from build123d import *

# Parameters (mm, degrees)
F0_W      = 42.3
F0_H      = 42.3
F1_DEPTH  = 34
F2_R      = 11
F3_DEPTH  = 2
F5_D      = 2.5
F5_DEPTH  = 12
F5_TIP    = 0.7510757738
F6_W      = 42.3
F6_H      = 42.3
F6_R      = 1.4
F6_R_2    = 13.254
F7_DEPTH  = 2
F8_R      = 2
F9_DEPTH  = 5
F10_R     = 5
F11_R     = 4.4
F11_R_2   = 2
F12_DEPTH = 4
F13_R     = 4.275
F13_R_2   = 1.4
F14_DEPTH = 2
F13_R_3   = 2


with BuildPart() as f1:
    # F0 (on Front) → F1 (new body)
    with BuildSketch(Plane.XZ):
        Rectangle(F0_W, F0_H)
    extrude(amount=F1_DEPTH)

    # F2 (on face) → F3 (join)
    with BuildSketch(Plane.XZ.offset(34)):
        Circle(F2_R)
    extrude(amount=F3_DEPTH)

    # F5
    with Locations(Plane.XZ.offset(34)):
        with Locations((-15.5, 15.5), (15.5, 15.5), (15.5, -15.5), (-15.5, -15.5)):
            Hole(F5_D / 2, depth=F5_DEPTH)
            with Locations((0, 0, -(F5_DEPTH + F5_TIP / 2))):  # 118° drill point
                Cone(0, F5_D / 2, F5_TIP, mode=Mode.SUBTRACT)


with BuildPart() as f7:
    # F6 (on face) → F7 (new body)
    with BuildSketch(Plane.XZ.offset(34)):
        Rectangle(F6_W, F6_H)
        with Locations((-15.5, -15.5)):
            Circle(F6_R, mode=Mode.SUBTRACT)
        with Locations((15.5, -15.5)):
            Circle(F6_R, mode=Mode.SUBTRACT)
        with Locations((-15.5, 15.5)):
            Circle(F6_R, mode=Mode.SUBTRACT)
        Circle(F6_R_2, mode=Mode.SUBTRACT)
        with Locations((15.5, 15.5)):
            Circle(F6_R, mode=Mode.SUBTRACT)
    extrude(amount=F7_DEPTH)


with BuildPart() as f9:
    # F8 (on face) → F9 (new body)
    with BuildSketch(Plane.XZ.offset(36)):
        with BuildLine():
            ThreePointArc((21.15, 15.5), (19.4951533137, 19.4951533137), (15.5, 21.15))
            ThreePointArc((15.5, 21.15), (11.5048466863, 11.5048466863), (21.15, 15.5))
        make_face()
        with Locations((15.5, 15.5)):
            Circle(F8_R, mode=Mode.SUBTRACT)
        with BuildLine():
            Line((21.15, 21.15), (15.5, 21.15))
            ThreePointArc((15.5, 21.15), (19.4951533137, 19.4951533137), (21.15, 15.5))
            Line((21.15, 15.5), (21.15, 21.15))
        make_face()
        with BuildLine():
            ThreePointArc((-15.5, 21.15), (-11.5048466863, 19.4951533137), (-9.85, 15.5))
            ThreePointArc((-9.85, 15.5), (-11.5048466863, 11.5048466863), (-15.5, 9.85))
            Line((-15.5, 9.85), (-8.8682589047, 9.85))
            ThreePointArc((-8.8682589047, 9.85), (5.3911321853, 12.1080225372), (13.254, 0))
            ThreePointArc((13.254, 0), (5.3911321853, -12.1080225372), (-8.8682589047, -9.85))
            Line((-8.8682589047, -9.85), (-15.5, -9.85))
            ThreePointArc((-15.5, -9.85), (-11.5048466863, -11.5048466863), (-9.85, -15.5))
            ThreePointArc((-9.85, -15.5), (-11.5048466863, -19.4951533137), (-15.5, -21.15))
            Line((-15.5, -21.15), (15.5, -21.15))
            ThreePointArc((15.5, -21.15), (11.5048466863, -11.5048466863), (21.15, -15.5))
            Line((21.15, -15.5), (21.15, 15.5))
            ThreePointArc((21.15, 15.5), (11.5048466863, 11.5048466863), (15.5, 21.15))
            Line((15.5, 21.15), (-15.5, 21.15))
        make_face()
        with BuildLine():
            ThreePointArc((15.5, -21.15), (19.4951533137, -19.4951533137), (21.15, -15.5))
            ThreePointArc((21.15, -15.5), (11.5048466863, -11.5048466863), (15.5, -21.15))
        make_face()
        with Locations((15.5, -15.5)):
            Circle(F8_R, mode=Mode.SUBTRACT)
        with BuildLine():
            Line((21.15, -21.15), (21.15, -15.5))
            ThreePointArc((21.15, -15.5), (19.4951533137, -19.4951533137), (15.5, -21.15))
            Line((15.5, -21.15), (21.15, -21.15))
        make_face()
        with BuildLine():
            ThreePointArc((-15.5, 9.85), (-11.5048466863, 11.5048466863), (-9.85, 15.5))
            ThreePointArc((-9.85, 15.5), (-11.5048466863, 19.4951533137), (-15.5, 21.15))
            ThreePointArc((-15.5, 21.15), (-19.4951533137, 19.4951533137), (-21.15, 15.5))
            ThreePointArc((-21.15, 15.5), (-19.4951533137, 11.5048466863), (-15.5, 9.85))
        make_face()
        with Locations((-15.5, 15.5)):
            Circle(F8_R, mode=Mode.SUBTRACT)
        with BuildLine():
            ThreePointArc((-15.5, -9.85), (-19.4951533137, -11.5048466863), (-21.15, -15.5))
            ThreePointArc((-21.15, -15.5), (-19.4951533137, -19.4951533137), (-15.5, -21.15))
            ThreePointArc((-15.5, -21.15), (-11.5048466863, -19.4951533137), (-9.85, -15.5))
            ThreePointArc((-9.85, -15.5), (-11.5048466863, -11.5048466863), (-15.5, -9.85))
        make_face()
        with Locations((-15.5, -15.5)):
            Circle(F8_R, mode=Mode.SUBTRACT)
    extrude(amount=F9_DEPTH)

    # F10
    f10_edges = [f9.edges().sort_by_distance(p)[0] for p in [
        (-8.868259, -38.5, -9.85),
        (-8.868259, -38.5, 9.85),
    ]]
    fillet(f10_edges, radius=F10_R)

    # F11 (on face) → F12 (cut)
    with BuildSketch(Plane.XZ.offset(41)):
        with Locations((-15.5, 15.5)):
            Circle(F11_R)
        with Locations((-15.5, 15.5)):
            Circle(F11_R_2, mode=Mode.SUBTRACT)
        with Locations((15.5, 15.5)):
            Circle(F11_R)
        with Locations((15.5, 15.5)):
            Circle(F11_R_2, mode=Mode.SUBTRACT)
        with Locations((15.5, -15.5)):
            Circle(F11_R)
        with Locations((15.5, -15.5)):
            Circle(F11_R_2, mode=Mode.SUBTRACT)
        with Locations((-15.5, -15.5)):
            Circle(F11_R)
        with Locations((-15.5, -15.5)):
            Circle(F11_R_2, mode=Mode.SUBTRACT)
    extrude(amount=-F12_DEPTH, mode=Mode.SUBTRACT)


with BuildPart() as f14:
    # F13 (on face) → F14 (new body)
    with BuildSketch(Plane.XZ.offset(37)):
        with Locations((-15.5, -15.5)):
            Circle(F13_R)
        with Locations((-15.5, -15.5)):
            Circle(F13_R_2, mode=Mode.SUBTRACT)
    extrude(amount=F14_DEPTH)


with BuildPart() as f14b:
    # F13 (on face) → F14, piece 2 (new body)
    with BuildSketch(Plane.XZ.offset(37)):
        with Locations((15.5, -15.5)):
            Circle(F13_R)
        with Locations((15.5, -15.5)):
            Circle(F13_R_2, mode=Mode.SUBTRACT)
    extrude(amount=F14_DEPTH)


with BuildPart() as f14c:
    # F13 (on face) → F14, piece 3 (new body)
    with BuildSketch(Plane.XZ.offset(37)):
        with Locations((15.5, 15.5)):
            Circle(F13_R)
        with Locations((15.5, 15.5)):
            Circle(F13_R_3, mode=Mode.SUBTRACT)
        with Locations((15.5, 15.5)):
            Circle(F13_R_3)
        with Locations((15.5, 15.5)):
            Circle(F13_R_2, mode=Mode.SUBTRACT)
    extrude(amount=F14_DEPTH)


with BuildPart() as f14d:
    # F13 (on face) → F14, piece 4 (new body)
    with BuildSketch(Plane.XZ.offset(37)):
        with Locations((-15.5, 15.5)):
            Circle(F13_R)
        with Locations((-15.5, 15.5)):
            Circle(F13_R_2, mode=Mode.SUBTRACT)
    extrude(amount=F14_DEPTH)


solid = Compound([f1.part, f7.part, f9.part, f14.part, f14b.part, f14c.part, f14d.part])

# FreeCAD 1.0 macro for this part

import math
import FreeCAD as App
import Part
import Sketcher

V = App.Vector
Q = App.Units.Quantity


def edges_at(feature, points):
    """Names of the edges that pass closest to the given points."""
    edges = feature.Shape.Edges
    near = lambda p: min(range(len(edges)), key=lambda i: edges[i].distToShape(Part.Vertex(*p))[0])
    return sorted({f"Edge{near(p) + 1}" for p in points})

doc = App.newDocument("Part")
body = doc.addObject("PartDesign::Body", "Body")

# Sketch on XZ plane
sketch1 = body.newObject("Sketcher::SketchObject", "Sketch")
sketch1.AttachmentSupport = (doc.getObject("XZ_Plane"), [""])
sketch1.MapMode = "FlatFace"
sketch1.addGeometry(Part.LineSegment(V(-21.15, 21.15, 0), V(-21.15, -21.15, 0)), False)
sketch1.addGeometry(Part.LineSegment(V(-21.15, -21.15, 0), V(21.15, -21.15, 0)), False)
sketch1.addGeometry(Part.LineSegment(V(21.15, -21.15, 0), V(21.15, 21.15, 0)), False)
sketch1.addGeometry(Part.LineSegment(V(21.15, 21.15, 0), V(-21.15, 21.15, 0)), False)
sketch1.addConstraint(Sketcher.Constraint("Coincident", 0, 2, 1, 1))
sketch1.addConstraint(Sketcher.Constraint("Coincident", 1, 2, 2, 1))
sketch1.addConstraint(Sketcher.Constraint("Coincident", 2, 2, 3, 1))
sketch1.addConstraint(Sketcher.Constraint("Coincident", 3, 2, 0, 1))
sketch1.addConstraint(Sketcher.Constraint("Vertical", 0))
sketch1.addConstraint(Sketcher.Constraint("Horizontal", 1))
sketch1.addConstraint(Sketcher.Constraint("Vertical", 2))
sketch1.addConstraint(Sketcher.Constraint("Horizontal", 3))
sketch1.addConstraint(Sketcher.Constraint("Symmetric", 0, 2, 2, 2, -1, 1))
sketch1.addConstraint(Sketcher.Constraint("Equal", 3, 0))
sketch1.addConstraint(Sketcher.Constraint("DistanceX", 1, 1, 1, 2, Q("42.3 mm")))
pad1 = body.newObject("PartDesign::Pad", "Pad")
pad1.Profile = sketch1
pad1.Length = 34

# Sketch on XZ plane
sketch2 = body.newObject("Sketcher::SketchObject", "Sketch001")
sketch2.AttachmentSupport = (doc.getObject("XZ_Plane"), [""])
sketch2.MapMode = "FlatFace"
sketch2.AttachmentOffset = App.Placement(V(0, 0, 34), App.Rotation())
sketch2.addGeometry(Part.Circle(V(0, 0, 0), V(0, 0, 1), 11), False)
sketch2.addConstraint(Sketcher.Constraint("Coincident", 0, 3, -1, 1))
sketch2.addConstraint(Sketcher.Constraint("Diameter", 0, Q("22 mm")))
pad2 = body.newObject("PartDesign::Pad", "Pad001")
pad2.Profile = sketch2
pad2.Length = 2

# Sketch on XZ plane
sketch3 = body.newObject("Sketcher::SketchObject", "Sketch002")
sketch3.AttachmentSupport = (doc.getObject("XZ_Plane"), [""])
sketch3.MapMode = "FlatFace"
sketch3.AttachmentOffset = App.Placement(V(0, 0, 34), App.Rotation())
sketch3.addGeometry(Part.Circle(V(-15.5, 15.5, 0), V(0, 0, 1), 1.25), False)
sketch3.addGeometry(Part.Circle(V(15.5, 15.5, 0), V(0, 0, 1), 1.25), False)
sketch3.addGeometry(Part.Circle(V(15.5, -15.5, 0), V(0, 0, 1), 1.25), False)
sketch3.addGeometry(Part.Circle(V(-15.5, -15.5, 0), V(0, 0, 1), 1.25), False)
sketch3.addConstraint(Sketcher.Constraint("Equal", 0, 1))
sketch3.addConstraint(Sketcher.Constraint("Equal", 1, 2))
sketch3.addConstraint(Sketcher.Constraint("Equal", 2, 3))
sketch3.addConstraint(Sketcher.Constraint("Symmetric", 0, 3, 2, 3, -1, 1))
sketch3.addConstraint(Sketcher.Constraint("Symmetric", 1, 3, 3, 3, -1, 1))
sketch3.addConstraint(Sketcher.Constraint("Symmetric", 0, 3, 1, 3, -2))
sketch3.addConstraint(Sketcher.Constraint("Diameter", 0, Q("2.5 mm")))
sketch3.addConstraint(Sketcher.Constraint("DistanceX", 0, 3, 1, 3, Q("31 mm")))
sketch3.addConstraint(Sketcher.Constraint("DistanceY", 2, 3, 1, 3, Q("31 mm")))
doc.recompute()
hole = body.newObject("PartDesign::Hole", "Hole")
hole.Profile = sketch3
hole.ThreadType = "None"
hole.Diameter = 2.5
hole.DepthType = "Dimension"
hole.Depth = 12
hole.DrillPoint = "Angled"
hole.DrillPointAngle = 118
body2 = doc.addObject("PartDesign::Body", "Body001")

# Sketch on XZ plane
sketch4 = body2.newObject("Sketcher::SketchObject", "Sketch003")
sketch4.AttachmentSupport = (doc.getObject("XZ_Plane001"), [""])
sketch4.MapMode = "FlatFace"
sketch4.AttachmentOffset = App.Placement(V(0, 0, 34), App.Rotation())
sketch4.addGeometry(Part.LineSegment(V(-21.15, 21.15, 0), V(-21.15, -21.15, 0)), False)
sketch4.addGeometry(Part.LineSegment(V(-21.15, -21.15, 0), V(21.15, -21.15, 0)), False)
sketch4.addGeometry(Part.LineSegment(V(21.15, -21.15, 0), V(21.15, 21.15, 0)), False)
sketch4.addGeometry(Part.LineSegment(V(21.15, 21.15, 0), V(-21.15, 21.15, 0)), False)
sketch4.addGeometry(Part.Circle(V(-15.5, -15.5, 0), V(0, 0, 1), 1.4), False)
sketch4.addGeometry(Part.Circle(V(15.5, -15.5, 0), V(0, 0, 1), 1.4), False)
sketch4.addGeometry(Part.Circle(V(-15.5, 15.5, 0), V(0, 0, 1), 1.4), False)
sketch4.addGeometry(Part.Circle(V(0, 0, 0), V(0, 0, 1), 13.254), False)
sketch4.addGeometry(Part.Circle(V(15.5, 15.5, 0), V(0, 0, 1), 1.4), False)
sketch4.addConstraint(Sketcher.Constraint("Coincident", 0, 2, 1, 1))
sketch4.addConstraint(Sketcher.Constraint("Coincident", 1, 2, 2, 1))
sketch4.addConstraint(Sketcher.Constraint("Coincident", 2, 2, 3, 1))
sketch4.addConstraint(Sketcher.Constraint("Coincident", 3, 2, 0, 1))
sketch4.addConstraint(Sketcher.Constraint("Vertical", 0))
sketch4.addConstraint(Sketcher.Constraint("Horizontal", 1))
sketch4.addConstraint(Sketcher.Constraint("Vertical", 2))
sketch4.addConstraint(Sketcher.Constraint("Horizontal", 3))
sketch4.addConstraint(Sketcher.Constraint("Coincident", 7, 3, -1, 1))
sketch4.addConstraint(Sketcher.Constraint("Equal", 4, 5))
sketch4.addConstraint(Sketcher.Constraint("Equal", 5, 6))
sketch4.addConstraint(Sketcher.Constraint("Equal", 6, 8))
sketch4.addConstraint(Sketcher.Constraint("Symmetric", 5, 3, 6, 3, -1, 1))
sketch4.addConstraint(Sketcher.Constraint("Symmetric", 4, 3, 8, 3, -1, 1))
sketch4.addConstraint(Sketcher.Constraint("Symmetric", 0, 2, 2, 2, -1, 1))
sketch4.addConstraint(Sketcher.Constraint("Symmetric", 4, 3, 5, 3, -2))
sketch4.addConstraint(Sketcher.Constraint("Equal", 3, 0))
sketch4.addConstraint(Sketcher.Constraint("Diameter", 4, Q("2.8 mm")))
sketch4.addConstraint(Sketcher.Constraint("Diameter", 7, Q("26.508 mm")))
sketch4.addConstraint(Sketcher.Constraint("DistanceX", 1, 1, 1, 2, Q("42.3 mm")))
sketch4.addConstraint(Sketcher.Constraint("DistanceX", 4, 3, 5, 3, Q("31 mm")))
sketch4.addConstraint(Sketcher.Constraint("DistanceY", 4, 3, 6, 3, Q("31 mm")))
pad3 = body2.newObject("PartDesign::Pad", "Pad002")
pad3.Profile = sketch4
pad3.Length = 2
body3 = doc.addObject("PartDesign::Body", "Body002")

# Sketch on XZ plane
sketch5 = body3.newObject("Sketcher::SketchObject", "Sketch004")
sketch5.AttachmentSupport = (doc.getObject("XZ_Plane002"), [""])
sketch5.MapMode = "FlatFace"
sketch5.AttachmentOffset = App.Placement(V(0, 0, 36), App.Rotation())
sketch5.addGeometry(Part.LineSegment(V(21.15, 21.15, 0), V(-15.5, 21.15, 0)), False)
sketch5.addGeometry(Part.ArcOfCircle(Part.Circle(V(-15.5, 15.5, 0), V(0, 0, 1), 5.65), math.radians(90), math.radians(180)), False)
sketch5.addGeometry(Part.ArcOfCircle(Part.Circle(V(-15.5, 15.5, 0), V(0, 0, 1), 5.65), math.radians(180), math.radians(270)), False)
sketch5.addGeometry(Part.LineSegment(V(-15.5, 9.85, 0), V(-8.868259, 9.85, 0)), False)
sketch5.addGeometry(Part.ArcOfCircle(Part.Circle(V(0, 0, 0), V(0, 0, 1), 13.254), math.radians(0), math.radians(131.997684)), False)
sketch5.addGeometry(Part.ArcOfCircle(Part.Circle(V(0, 0, 0), V(0, 0, 1), 13.254), math.radians(-131.997684), math.radians(0)), False)
sketch5.addGeometry(Part.LineSegment(V(-8.868259, -9.85, 0), V(-15.5, -9.85, 0)), False)
sketch5.addGeometry(Part.ArcOfCircle(Part.Circle(V(-15.5, -15.5, 0), V(0, 0, 1), 5.65), math.radians(90), math.radians(180)), False)
sketch5.addGeometry(Part.ArcOfCircle(Part.Circle(V(-15.5, -15.5, 0), V(0, 0, 1), 5.65), math.radians(180), math.radians(270)), False)
sketch5.addGeometry(Part.LineSegment(V(-15.5, -21.15, 0), V(21.15, -21.15, 0)), False)
sketch5.addGeometry(Part.LineSegment(V(21.15, -21.15, 0), V(21.15, 21.15, 0)), False)
sketch5.addGeometry(Part.Circle(V(-15.5, -15.5, 0), V(0, 0, 1), 2), False)
sketch5.addGeometry(Part.Circle(V(15.5, -15.5, 0), V(0, 0, 1), 2), False)
sketch5.addGeometry(Part.Circle(V(-15.5, 15.5, 0), V(0, 0, 1), 2), False)
sketch5.addGeometry(Part.Circle(V(15.5, 15.5, 0), V(0, 0, 1), 2), False)
sketch5.addConstraint(Sketcher.Constraint("Tangent", 0, 2, 1, 1))
sketch5.addConstraint(Sketcher.Constraint("Tangent", 1, 2, 2, 1))
sketch5.addConstraint(Sketcher.Constraint("Tangent", 2, 2, 3, 1))
sketch5.addConstraint(Sketcher.Constraint("Coincident", 3, 2, 4, 2))
sketch5.addConstraint(Sketcher.Constraint("Tangent", 4, 1, 5, 2))
sketch5.addConstraint(Sketcher.Constraint("Coincident", 5, 1, 6, 1))
sketch5.addConstraint(Sketcher.Constraint("Tangent", 6, 2, 7, 1))
sketch5.addConstraint(Sketcher.Constraint("Tangent", 7, 2, 8, 1))
sketch5.addConstraint(Sketcher.Constraint("Tangent", 8, 2, 9, 1))
sketch5.addConstraint(Sketcher.Constraint("Coincident", 9, 2, 10, 1))
sketch5.addConstraint(Sketcher.Constraint("Coincident", 10, 2, 0, 1))
sketch5.addConstraint(Sketcher.Constraint("Horizontal", 0))
sketch5.addConstraint(Sketcher.Constraint("Horizontal", 3))
sketch5.addConstraint(Sketcher.Constraint("Horizontal", 6))
sketch5.addConstraint(Sketcher.Constraint("Horizontal", 9))
sketch5.addConstraint(Sketcher.Constraint("Vertical", 10))
sketch5.addConstraint(Sketcher.Constraint("Coincident", 4, 3, -1, 1))
sketch5.addConstraint(Sketcher.Constraint("Coincident", 11, 3, 7, 3))
sketch5.addConstraint(Sketcher.Constraint("Coincident", 13, 3, 1, 3))
sketch5.addConstraint(Sketcher.Constraint("Equal", 1, 2))
sketch5.addConstraint(Sketcher.Constraint("Equal", 4, 5))
sketch5.addConstraint(Sketcher.Constraint("Equal", 2, 7))
sketch5.addConstraint(Sketcher.Constraint("Equal", 7, 8))
sketch5.addConstraint(Sketcher.Constraint("Equal", 11, 12))
sketch5.addConstraint(Sketcher.Constraint("Equal", 12, 13))
sketch5.addConstraint(Sketcher.Constraint("Equal", 13, 14))
sketch5.addConstraint(Sketcher.Constraint("Symmetric", 1, 3, 12, 3, -1, 1))
sketch5.addConstraint(Sketcher.Constraint("Symmetric", 7, 3, 14, 3, -1, 1))
sketch5.addConstraint(Sketcher.Constraint("Symmetric", 7, 3, 12, 3, -2))
sketch5.addConstraint(Sketcher.Constraint("PointOnObject", 4, 1, -1))
sketch5.addConstraint(Sketcher.Constraint("Horizontal", 14, 3, 1, 2))
sketch5.addConstraint(Sketcher.Constraint("Horizontal", 12, 3, 7, 2))
sketch5.addConstraint(Sketcher.Constraint("Diameter", 11, Q("4 mm")))
sketch5.addConstraint(Sketcher.Constraint("Radius", 1, Q("5.65 mm")))
sketch5.addConstraint(Sketcher.Constraint("DistanceY", 10, 1, 10, 2, Q("42.3 mm")))
sketch5.addConstraint(Sketcher.Constraint("Radius", 4, Q("13.254 mm")))
sketch5.addConstraint(Sketcher.Constraint("DistanceX", 7, 3, 12, 3, Q("31 mm")))
sketch5.addConstraint(Sketcher.Constraint("DistanceX", 0, 2, 0, 1, Q("36.65 mm")))
pad4 = body3.newObject("PartDesign::Pad", "Pad003")
pad4.Profile = sketch5
pad4.Length = 5
doc.recompute()

fillet = body3.newObject("PartDesign::Fillet", "Fillet")
fillet.Base = (pad4, edges_at(pad4, [(-8.868, -38.5, -9.85), (-8.868, -38.5, 9.85)]))
fillet.Radius = 5

# Sketch on XZ plane
sketch6 = body3.newObject("Sketcher::SketchObject", "Sketch005")
sketch6.AttachmentSupport = (doc.getObject("XZ_Plane002"), [""])
sketch6.MapMode = "FlatFace"
sketch6.AttachmentOffset = App.Placement(V(0, 0, 41), App.Rotation())
sketch6.addGeometry(Part.Circle(V(-15.5, 15.5, 0), V(0, 0, 1), 4.4), False)
sketch6.addGeometry(Part.Circle(V(-15.5, 15.5, 0), V(0, 0, 1), 2), False)
sketch6.addGeometry(Part.Circle(V(15.5, 15.5, 0), V(0, 0, 1), 4.4), False)
sketch6.addGeometry(Part.Circle(V(15.5, 15.5, 0), V(0, 0, 1), 2), False)
sketch6.addGeometry(Part.Circle(V(15.5, -15.5, 0), V(0, 0, 1), 4.4), False)
sketch6.addGeometry(Part.Circle(V(15.5, -15.5, 0), V(0, 0, 1), 2), False)
sketch6.addGeometry(Part.Circle(V(-15.5, -15.5, 0), V(0, 0, 1), 4.4), False)
sketch6.addGeometry(Part.Circle(V(-15.5, -15.5, 0), V(0, 0, 1), 2), False)
sketch6.addConstraint(Sketcher.Constraint("Coincident", 1, 3, 0, 3))
sketch6.addConstraint(Sketcher.Constraint("Coincident", 3, 3, 2, 3))
sketch6.addConstraint(Sketcher.Constraint("Coincident", 5, 3, 4, 3))
sketch6.addConstraint(Sketcher.Constraint("Coincident", 7, 3, 6, 3))
sketch6.addConstraint(Sketcher.Constraint("Equal", 0, 2))
sketch6.addConstraint(Sketcher.Constraint("Equal", 1, 3))
sketch6.addConstraint(Sketcher.Constraint("Equal", 2, 4))
sketch6.addConstraint(Sketcher.Constraint("Equal", 3, 5))
sketch6.addConstraint(Sketcher.Constraint("Equal", 4, 6))
sketch6.addConstraint(Sketcher.Constraint("Equal", 5, 7))
sketch6.addConstraint(Sketcher.Constraint("Symmetric", 0, 3, 4, 3, -1, 1))
sketch6.addConstraint(Sketcher.Constraint("Symmetric", 2, 3, 6, 3, -1, 1))
sketch6.addConstraint(Sketcher.Constraint("Symmetric", 0, 3, 2, 3, -2))
sketch6.addConstraint(Sketcher.Constraint("Diameter", 1, Q("4 mm")))
sketch6.addConstraint(Sketcher.Constraint("Diameter", 0, Q("8.8 mm")))
sketch6.addConstraint(Sketcher.Constraint("DistanceX", 0, 3, 2, 3, Q("31 mm")))
sketch6.addConstraint(Sketcher.Constraint("DistanceY", 4, 3, 2, 3, Q("31 mm")))
pocket1 = body3.newObject("PartDesign::Pocket", "Pocket")
pocket1.Profile = sketch6
pocket1.Length = 4
body4 = doc.addObject("PartDesign::Body", "Body003")

# Sketch on XZ plane
sketch7 = body4.newObject("Sketcher::SketchObject", "Sketch006")
sketch7.AttachmentSupport = (doc.getObject("XZ_Plane003"), [""])
sketch7.MapMode = "FlatFace"
sketch7.AttachmentOffset = App.Placement(V(0, 0, 37), App.Rotation())
sketch7.addGeometry(Part.Circle(V(-15.5, -15.5, 0), V(0, 0, 1), 4.275), False)
sketch7.addGeometry(Part.Circle(V(-15.5, -15.5, 0), V(0, 0, 1), 1.4), False)
sketch7.addConstraint(Sketcher.Constraint("Coincident", 1, 3, 0, 3))
sketch7.addConstraint(Sketcher.Constraint("Diameter", 1, Q("2.8 mm")))
sketch7.addConstraint(Sketcher.Constraint("Diameter", 0, Q("8.55 mm")))
sketch7.addConstraint(Sketcher.Constraint("DistanceX", 0, 3, -1, 1, Q("15.5 mm")))
sketch7.addConstraint(Sketcher.Constraint("DistanceY", 0, 3, -1, 1, Q("15.5 mm")))
pad5 = body4.newObject("PartDesign::Pad", "Pad004")
pad5.Profile = sketch7
pad5.Length = 2
body5 = doc.addObject("PartDesign::Body", "Body004")

# Sketch on XZ plane
sketch8 = body5.newObject("Sketcher::SketchObject", "Sketch007")
sketch8.AttachmentSupport = (doc.getObject("XZ_Plane004"), [""])
sketch8.MapMode = "FlatFace"
sketch8.AttachmentOffset = App.Placement(V(0, 0, 37), App.Rotation())
sketch8.addGeometry(Part.Circle(V(15.5, -15.5, 0), V(0, 0, 1), 4.275), False)
sketch8.addGeometry(Part.Circle(V(15.5, -15.5, 0), V(0, 0, 1), 1.4), False)
sketch8.addConstraint(Sketcher.Constraint("Coincident", 1, 3, 0, 3))
sketch8.addConstraint(Sketcher.Constraint("Diameter", 1, Q("2.8 mm")))
sketch8.addConstraint(Sketcher.Constraint("Diameter", 0, Q("8.55 mm")))
sketch8.addConstraint(Sketcher.Constraint("DistanceX", -1, 1, 0, 3, Q("15.5 mm")))
sketch8.addConstraint(Sketcher.Constraint("DistanceY", 0, 3, -1, 1, Q("15.5 mm")))
pad6 = body5.newObject("PartDesign::Pad", "Pad005")
pad6.Profile = sketch8
pad6.Length = 2
body6 = doc.addObject("PartDesign::Body", "Body005")

# Sketch on XZ plane
sketch9 = body6.newObject("Sketcher::SketchObject", "Sketch008")
sketch9.AttachmentSupport = (doc.getObject("XZ_Plane005"), [""])
sketch9.MapMode = "FlatFace"
sketch9.AttachmentOffset = App.Placement(V(0, 0, 37), App.Rotation())
sketch9.addGeometry(Part.Circle(V(15.5, 15.5, 0), V(0, 0, 1), 4.275), False)
sketch9.addGeometry(Part.Circle(V(15.5, 15.5, 0), V(0, 0, 1), 1.4), False)
sketch9.addConstraint(Sketcher.Constraint("Coincident", 1, 3, 0, 3))
sketch9.addConstraint(Sketcher.Constraint("Diameter", 1, Q("2.8 mm")))
sketch9.addConstraint(Sketcher.Constraint("Diameter", 0, Q("8.55 mm")))
sketch9.addConstraint(Sketcher.Constraint("DistanceX", -1, 1, 0, 3, Q("15.5 mm")))
sketch9.addConstraint(Sketcher.Constraint("DistanceY", -1, 1, 0, 3, Q("15.5 mm")))
pad7 = body6.newObject("PartDesign::Pad", "Pad006")
pad7.Profile = sketch9
pad7.Length = 2
body7 = doc.addObject("PartDesign::Body", "Body006")

# Sketch on XZ plane
sketch10 = body7.newObject("Sketcher::SketchObject", "Sketch009")
sketch10.AttachmentSupport = (doc.getObject("XZ_Plane006"), [""])
sketch10.MapMode = "FlatFace"
sketch10.AttachmentOffset = App.Placement(V(0, 0, 37), App.Rotation())
sketch10.addGeometry(Part.Circle(V(-15.5, 15.5, 0), V(0, 0, 1), 4.275), False)
sketch10.addGeometry(Part.Circle(V(-15.5, 15.5, 0), V(0, 0, 1), 1.4), False)
sketch10.addConstraint(Sketcher.Constraint("Coincident", 1, 3, 0, 3))
sketch10.addConstraint(Sketcher.Constraint("Diameter", 1, Q("2.8 mm")))
sketch10.addConstraint(Sketcher.Constraint("Diameter", 0, Q("8.55 mm")))
sketch10.addConstraint(Sketcher.Constraint("DistanceX", 0, 3, -1, 1, Q("15.5 mm")))
sketch10.addConstraint(Sketcher.Constraint("DistanceY", -1, 1, 0, 3, Q("15.5 mm")))
pad8 = body7.newObject("PartDesign::Pad", "Pad007")
pad8.Profile = sketch10
pad8.Length = 2

doc.recompute()
